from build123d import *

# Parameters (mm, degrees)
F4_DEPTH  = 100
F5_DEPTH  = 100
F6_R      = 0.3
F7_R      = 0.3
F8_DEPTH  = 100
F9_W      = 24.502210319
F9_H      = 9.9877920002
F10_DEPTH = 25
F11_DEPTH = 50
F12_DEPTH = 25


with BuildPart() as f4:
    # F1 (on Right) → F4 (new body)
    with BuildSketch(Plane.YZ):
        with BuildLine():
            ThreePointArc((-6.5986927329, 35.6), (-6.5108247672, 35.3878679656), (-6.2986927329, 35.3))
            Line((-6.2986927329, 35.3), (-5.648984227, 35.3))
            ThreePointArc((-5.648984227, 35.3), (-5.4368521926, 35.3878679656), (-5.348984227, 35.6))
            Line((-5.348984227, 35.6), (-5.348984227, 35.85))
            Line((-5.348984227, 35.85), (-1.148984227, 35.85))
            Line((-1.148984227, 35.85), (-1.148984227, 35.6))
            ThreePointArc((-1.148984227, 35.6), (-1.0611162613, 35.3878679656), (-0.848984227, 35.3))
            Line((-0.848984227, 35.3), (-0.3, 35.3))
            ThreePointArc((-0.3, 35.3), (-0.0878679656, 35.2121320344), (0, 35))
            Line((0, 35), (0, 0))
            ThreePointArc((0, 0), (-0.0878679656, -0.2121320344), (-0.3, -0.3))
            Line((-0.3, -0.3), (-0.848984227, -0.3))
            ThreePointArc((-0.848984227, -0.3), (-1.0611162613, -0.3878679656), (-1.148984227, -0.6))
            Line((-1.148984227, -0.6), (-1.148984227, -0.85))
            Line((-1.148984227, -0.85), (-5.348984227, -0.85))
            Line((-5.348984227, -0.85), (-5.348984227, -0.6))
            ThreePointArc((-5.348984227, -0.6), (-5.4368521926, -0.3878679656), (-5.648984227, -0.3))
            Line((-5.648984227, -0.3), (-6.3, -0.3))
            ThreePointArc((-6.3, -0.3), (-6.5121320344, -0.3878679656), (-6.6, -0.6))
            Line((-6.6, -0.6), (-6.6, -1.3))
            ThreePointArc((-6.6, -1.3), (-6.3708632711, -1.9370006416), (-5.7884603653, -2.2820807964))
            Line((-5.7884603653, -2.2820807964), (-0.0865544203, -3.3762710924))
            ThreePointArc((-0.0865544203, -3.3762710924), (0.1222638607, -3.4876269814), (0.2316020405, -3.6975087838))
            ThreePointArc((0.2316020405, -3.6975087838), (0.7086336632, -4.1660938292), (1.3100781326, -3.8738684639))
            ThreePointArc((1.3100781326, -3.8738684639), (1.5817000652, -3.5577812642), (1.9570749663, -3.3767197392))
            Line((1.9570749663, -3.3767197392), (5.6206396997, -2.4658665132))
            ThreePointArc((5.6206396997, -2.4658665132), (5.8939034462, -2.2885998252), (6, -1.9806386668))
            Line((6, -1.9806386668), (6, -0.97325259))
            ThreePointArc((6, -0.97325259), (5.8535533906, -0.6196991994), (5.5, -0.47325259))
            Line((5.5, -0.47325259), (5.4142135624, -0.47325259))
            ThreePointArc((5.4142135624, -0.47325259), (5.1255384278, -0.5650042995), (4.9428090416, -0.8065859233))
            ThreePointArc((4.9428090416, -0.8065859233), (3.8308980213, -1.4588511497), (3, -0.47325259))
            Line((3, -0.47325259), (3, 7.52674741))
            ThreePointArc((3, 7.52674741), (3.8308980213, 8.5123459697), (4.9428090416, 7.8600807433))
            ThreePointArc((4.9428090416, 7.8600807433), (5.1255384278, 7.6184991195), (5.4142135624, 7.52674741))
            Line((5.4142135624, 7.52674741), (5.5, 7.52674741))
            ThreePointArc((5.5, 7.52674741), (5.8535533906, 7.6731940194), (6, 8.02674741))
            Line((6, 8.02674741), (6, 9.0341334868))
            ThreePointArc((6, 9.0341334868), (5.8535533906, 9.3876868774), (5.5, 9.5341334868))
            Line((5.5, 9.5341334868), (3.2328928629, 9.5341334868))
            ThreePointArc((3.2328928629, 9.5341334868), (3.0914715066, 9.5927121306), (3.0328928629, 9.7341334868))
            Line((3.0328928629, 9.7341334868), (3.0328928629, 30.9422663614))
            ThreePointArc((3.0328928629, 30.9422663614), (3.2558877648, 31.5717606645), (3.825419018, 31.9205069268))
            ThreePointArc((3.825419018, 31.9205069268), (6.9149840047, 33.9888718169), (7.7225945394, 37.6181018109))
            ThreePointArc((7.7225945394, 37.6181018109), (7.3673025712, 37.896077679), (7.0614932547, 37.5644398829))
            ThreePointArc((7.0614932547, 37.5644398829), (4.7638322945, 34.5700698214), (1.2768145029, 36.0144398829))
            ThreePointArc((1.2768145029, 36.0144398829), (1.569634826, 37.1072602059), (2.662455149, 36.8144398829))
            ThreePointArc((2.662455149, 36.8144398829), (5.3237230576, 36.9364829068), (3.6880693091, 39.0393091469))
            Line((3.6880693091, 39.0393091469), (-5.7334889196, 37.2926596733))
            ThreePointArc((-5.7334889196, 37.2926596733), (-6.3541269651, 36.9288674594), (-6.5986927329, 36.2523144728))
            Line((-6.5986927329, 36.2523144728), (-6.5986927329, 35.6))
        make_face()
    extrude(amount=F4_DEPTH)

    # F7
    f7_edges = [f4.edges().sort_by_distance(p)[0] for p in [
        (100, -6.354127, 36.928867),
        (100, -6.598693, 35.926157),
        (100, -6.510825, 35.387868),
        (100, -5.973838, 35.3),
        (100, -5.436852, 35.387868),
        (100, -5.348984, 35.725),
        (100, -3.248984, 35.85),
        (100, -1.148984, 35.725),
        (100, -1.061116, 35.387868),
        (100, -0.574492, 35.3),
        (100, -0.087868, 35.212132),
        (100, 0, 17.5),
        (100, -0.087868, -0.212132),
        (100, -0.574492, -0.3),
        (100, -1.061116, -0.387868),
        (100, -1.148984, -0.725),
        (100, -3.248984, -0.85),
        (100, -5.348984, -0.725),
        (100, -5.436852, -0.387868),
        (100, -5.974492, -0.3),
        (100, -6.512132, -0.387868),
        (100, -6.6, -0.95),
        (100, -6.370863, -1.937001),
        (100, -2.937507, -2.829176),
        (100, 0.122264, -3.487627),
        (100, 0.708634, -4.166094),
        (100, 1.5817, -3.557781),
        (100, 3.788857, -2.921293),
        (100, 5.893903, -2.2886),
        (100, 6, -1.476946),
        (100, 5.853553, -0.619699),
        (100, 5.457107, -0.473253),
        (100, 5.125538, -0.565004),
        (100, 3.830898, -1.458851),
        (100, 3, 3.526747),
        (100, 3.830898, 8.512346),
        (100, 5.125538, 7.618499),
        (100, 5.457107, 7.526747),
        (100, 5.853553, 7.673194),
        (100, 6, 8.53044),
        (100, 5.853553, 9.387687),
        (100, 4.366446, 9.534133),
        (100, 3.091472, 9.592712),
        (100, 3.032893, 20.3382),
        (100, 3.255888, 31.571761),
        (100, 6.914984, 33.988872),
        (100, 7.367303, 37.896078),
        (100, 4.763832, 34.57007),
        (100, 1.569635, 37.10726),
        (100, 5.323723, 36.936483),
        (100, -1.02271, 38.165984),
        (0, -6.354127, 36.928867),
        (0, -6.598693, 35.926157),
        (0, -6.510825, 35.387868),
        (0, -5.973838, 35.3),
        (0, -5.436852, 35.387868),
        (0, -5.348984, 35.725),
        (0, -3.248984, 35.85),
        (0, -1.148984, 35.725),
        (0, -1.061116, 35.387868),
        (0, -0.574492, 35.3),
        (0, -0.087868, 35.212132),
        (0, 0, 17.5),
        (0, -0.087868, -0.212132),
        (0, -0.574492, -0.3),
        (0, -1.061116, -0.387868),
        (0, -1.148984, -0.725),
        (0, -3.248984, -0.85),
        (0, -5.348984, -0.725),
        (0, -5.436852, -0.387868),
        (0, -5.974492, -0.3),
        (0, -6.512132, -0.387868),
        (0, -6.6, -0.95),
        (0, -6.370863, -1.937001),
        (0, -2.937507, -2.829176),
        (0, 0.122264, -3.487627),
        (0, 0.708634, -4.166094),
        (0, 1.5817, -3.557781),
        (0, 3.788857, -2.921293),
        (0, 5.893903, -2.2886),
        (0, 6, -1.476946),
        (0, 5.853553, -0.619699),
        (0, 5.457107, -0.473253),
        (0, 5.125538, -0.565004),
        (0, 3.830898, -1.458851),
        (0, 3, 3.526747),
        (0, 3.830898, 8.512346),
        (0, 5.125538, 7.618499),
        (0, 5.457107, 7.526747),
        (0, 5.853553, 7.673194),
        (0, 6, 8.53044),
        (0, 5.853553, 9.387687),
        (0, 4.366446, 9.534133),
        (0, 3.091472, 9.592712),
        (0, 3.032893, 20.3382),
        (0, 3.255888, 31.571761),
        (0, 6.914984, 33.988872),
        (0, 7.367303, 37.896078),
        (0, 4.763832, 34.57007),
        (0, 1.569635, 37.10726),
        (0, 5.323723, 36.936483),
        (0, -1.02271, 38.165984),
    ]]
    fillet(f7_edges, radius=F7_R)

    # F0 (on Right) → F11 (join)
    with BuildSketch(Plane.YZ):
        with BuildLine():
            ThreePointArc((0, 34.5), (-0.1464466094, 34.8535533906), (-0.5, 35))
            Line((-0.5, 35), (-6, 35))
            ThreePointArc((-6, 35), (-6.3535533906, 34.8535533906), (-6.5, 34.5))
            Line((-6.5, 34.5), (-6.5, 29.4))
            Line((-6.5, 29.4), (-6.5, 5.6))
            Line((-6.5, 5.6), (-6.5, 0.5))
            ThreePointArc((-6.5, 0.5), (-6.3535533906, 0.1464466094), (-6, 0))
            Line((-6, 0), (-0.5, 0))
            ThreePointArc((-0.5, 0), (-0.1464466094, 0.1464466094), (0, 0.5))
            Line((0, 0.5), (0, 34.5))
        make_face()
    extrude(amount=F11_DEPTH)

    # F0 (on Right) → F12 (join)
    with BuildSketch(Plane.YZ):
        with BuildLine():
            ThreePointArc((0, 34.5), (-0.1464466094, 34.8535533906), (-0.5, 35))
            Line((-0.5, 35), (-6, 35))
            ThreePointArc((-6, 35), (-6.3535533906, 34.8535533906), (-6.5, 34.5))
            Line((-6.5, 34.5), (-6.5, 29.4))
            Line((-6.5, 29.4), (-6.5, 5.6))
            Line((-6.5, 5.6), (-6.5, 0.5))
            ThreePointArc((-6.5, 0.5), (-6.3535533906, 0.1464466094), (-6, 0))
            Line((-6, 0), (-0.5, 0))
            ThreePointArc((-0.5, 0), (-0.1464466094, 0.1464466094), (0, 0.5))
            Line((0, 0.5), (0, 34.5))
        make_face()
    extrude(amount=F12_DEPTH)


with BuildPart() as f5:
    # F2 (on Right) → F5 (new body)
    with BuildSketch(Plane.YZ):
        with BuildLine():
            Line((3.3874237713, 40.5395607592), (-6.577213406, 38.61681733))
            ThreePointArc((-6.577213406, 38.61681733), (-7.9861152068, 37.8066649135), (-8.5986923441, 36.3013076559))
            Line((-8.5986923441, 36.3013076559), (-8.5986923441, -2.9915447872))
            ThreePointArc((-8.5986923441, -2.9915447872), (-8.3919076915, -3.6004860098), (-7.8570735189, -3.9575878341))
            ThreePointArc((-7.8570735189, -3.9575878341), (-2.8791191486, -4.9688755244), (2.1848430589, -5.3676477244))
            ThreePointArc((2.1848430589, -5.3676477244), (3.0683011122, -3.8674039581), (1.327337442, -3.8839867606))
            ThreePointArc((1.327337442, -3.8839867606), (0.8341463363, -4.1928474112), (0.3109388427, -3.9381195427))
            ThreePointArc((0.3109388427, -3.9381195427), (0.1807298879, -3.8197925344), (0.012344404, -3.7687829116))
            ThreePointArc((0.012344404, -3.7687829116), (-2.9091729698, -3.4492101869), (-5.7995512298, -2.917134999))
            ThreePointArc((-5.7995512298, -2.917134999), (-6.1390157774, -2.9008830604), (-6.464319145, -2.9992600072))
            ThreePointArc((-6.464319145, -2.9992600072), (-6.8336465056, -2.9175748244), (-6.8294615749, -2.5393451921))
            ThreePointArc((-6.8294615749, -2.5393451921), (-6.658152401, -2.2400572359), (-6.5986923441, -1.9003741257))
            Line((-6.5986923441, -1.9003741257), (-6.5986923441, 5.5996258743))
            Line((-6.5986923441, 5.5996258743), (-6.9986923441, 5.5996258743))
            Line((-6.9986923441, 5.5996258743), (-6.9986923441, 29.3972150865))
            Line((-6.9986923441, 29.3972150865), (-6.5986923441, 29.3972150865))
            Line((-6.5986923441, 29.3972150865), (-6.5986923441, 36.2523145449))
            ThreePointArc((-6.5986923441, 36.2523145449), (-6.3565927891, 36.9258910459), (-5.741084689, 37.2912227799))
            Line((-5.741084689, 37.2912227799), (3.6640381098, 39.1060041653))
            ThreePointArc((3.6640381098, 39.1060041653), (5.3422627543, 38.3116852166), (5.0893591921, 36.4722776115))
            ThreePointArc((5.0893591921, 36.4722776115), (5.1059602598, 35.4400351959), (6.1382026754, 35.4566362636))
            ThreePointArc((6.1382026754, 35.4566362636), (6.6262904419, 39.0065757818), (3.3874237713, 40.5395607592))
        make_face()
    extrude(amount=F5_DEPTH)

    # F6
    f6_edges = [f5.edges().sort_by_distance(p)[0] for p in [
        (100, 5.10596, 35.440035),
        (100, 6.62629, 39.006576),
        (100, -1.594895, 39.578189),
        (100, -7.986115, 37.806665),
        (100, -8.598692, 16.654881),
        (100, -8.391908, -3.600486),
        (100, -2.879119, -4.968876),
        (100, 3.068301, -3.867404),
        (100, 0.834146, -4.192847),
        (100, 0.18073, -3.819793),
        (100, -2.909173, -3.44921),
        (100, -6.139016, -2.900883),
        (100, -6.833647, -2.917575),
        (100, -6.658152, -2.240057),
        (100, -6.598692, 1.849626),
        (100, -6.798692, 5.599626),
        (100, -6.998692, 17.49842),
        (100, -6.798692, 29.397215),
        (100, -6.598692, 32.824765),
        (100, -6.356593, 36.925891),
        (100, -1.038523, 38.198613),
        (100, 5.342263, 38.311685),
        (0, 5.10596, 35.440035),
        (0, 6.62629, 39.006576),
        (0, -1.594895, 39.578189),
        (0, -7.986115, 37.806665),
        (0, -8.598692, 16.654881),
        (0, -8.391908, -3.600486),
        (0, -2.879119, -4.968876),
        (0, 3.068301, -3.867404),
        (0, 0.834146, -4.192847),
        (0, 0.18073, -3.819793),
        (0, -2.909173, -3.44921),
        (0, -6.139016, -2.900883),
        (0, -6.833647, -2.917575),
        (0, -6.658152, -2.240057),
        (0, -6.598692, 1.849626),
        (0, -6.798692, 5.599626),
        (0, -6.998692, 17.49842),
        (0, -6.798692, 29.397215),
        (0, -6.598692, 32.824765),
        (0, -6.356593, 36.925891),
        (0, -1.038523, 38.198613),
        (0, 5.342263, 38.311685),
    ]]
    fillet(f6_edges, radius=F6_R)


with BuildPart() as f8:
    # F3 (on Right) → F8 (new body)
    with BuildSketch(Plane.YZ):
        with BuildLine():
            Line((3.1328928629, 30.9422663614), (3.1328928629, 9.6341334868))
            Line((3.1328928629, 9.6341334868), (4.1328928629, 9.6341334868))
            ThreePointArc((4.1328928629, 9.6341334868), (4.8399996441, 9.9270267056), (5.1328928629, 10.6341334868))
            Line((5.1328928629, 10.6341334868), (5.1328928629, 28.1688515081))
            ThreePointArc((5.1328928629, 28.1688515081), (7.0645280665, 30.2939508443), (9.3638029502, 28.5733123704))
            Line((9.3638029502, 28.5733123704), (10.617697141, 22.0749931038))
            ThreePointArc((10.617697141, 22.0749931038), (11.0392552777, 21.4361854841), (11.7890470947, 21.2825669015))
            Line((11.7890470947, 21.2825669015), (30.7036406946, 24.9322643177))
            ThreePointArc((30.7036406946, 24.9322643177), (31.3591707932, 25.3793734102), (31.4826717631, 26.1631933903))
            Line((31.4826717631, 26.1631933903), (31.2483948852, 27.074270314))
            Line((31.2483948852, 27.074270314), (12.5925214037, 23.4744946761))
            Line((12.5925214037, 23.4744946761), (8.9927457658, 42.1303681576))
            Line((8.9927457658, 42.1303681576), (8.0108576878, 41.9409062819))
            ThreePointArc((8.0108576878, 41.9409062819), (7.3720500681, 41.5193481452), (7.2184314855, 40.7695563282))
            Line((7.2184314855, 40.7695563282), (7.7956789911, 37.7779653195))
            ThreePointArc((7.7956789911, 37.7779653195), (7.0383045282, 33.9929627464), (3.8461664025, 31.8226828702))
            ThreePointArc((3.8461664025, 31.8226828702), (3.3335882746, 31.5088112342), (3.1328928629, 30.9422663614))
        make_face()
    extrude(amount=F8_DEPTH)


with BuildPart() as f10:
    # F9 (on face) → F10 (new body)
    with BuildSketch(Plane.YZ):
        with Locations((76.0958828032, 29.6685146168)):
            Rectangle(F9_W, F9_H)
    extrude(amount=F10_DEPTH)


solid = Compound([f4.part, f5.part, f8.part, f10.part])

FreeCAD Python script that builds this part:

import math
import FreeCAD as App
import Part
import Sketcher
from FreeCAD import Vector
Q = App.Units.Quantity


def edges_at(feature, points):
    """Names of the edges that pass closest to the given points."""
    edges = feature.Shape.Edges
    near = lambda p: min(range(len(edges)), key=lambda i: edges[i].distToShape(Part.Vertex(*p))[0])
    return sorted({f"Edge{near(p) + 1}" for p in points})


def add_polygon(sketch, points):
    """Adds a closed chain of lines whose ends are joined by coincident constraints."""
    first, n = sketch.GeometryCount, len(points)
    for a, b in zip(points, points[1:] + points[:1]):
        sketch.addGeometry(Part.LineSegment(App.Vector(*a, 0), App.Vector(*b, 0)), False)
    for i in range(n):
        sketch.addConstraint(Sketcher.Constraint("Coincident", first + i, 2, first + (i + 1) % n, 1))

doc = App.newDocument("Part")
params = doc.addObject("Spreadsheet::Sheet", "Params")
for row, (alias, value) in enumerate([
    ("sketch1_radius", "1 mm"),
    ("sketch1_radius2", "5 mm"),
    ("sketch1_radius3", "0.3 mm"),
    ("sketch1_radius4", "0.4 mm"),
    ("sketch1_radius5", "0.5 mm"),
    ("pad1_length", "100 mm"),
    ("fillet_radius", "0.3 mm"),
    ("sketch2_radius", "0.5 mm"),
    ("sketch2_height", "34 mm"),
    ("sketch2_width", "5.5 mm"),
    ("pad2_length", "50 mm"),
    ("sketch3_radius", "0.5 mm"),
    ("sketch3_height", "34 mm"),
    ("sketch3_width", "5.5 mm"),
    ("pad3_length", "25 mm"),
    ("sketch4_radius", "1 mm"),
    ("sketch4_radius2", "0.6 mm"),
    ("sketch4_radius3", "0.4 mm"),
    ("sketch4_radius4", "0.3 mm"),
    ("sketch4_radius5", "1.57 mm"),
    ("pad4_length", "100 mm"),
    ("fillet2_radius", "0.3 mm"),
    ("sketch5_radius", "1 mm"),
    ("sketch5_radius2", "5.1 mm"),
    ("sketch5_radius3", "0.9 mm"),
    ("sketch5_width", "1 mm"),
    ("sketch5_length", "19 mm"),
    ("pad5_length", "100 mm"),
    ("pad6_length", "25 mm"),
], start=1):
    params.set(f"A{row}", alias)
    params.set(f"B{row}", "=" + value)
    params.setAlias(f"B{row}", alias)

body = doc.addObject("PartDesign::Body", "Body")

sketch1 = body.newObject("Sketcher::SketchObject", "Sketch")
sketch1.AttachmentSupport = (doc.getObject("YZ_Plane"), [""])
sketch1.MapMode = "FlatFace"
sketch1.addGeometry(Part.ArcOfCircle(Part.Circle(Vector(-6.3, 35.6, 0), Vector(0, 0, 1), 0.3), math.radians(180), math.radians(270)), False)
sketch1.addGeometry(Part.LineSegment(Vector(-6.3, 35.3, 0), Vector(-5.65, 35.3, 0)), False)
sketch1.addGeometry(Part.ArcOfCircle(Part.Circle(Vector(-5.65, 35.6, 0), Vector(0, 0, 1), 0.3), math.radians(-90), math.radians(0)), False)
sketch1.addGeometry(Part.LineSegment(Vector(-5.35, 35.6, 0), Vector(-5.35, 35.85, 0)), False)
sketch1.addGeometry(Part.LineSegment(Vector(-5.35, 35.85, 0), Vector(-1.15, 35.85, 0)), False)
sketch1.addGeometry(Part.LineSegment(Vector(-1.15, 35.85, 0), Vector(-1.15, 35.6, 0)), False)
sketch1.addGeometry(Part.ArcOfCircle(Part.Circle(Vector(-0.85, 35.6, 0), Vector(0, 0, 1), 0.3), math.radians(180), math.radians(270)), False)
sketch1.addGeometry(Part.LineSegment(Vector(-0.85, 35.3, 0), Vector(-0.3, 35.3, 0)), False)
sketch1.addGeometry(Part.ArcOfCircle(Part.Circle(Vector(-0.3, 35, 0), Vector(0, 0, 1), 0.3), math.radians(0), math.radians(90)), False)
sketch1.addGeometry(Part.LineSegment(Vector(0, 35, 0), Vector(0, 0, 0)), False)
sketch1.addGeometry(Part.ArcOfCircle(Part.Circle(Vector(-0.3, 0, 0), Vector(0, 0, 1), 0.3), math.radians(-90), math.radians(0)), False)
sketch1.addGeometry(Part.LineSegment(Vector(-0.3, -0.3, 0), Vector(-0.85, -0.3, 0)), False)
sketch1.addGeometry(Part.ArcOfCircle(Part.Circle(Vector(-0.85, -0.6, 0), Vector(0, 0, 1), 0.3), math.radians(90), math.radians(180)), False)
sketch1.addGeometry(Part.LineSegment(Vector(-1.15, -0.6, 0), Vector(-1.15, -0.85, 0)), False)
sketch1.addGeometry(Part.LineSegment(Vector(-1.15, -0.85, 0), Vector(-5.35, -0.85, 0)), False)
sketch1.addGeometry(Part.LineSegment(Vector(-5.35, -0.85, 0), Vector(-5.35, -0.6, 0)), False)
sketch1.addGeometry(Part.ArcOfCircle(Part.Circle(Vector(-5.65, -0.6, 0), Vector(0, 0, 1), 0.3), math.radians(0), math.radians(90)), False)
sketch1.addGeometry(Part.LineSegment(Vector(-5.65, -0.3, 0), Vector(-6.3, -0.3, 0)), False)
sketch1.addGeometry(Part.ArcOfCircle(Part.Circle(Vector(-6.3, -0.6, 0), Vector(0, 0, 1), 0.3), math.radians(90), math.radians(180)), False)
sketch1.addGeometry(Part.LineSegment(Vector(-6.6, -0.6, 0), Vector(-6.6, -1.3, 0)), False)
sketch1.addGeometry(Part.ArcOfCircle(Part.Circle(Vector(-5.6, -1.3, 0), Vector(0, 0, 1), 1), math.radians(180), math.radians(259)), False)
sketch1.addGeometry(Part.LineSegment(Vector(-5.79, -2.28, 0), Vector(-0.09, -3.38, 0)), False)
sketch1.addGeometry(Part.ArcOfCircle(Part.Circle(Vector(-0.16, -3.77, 0), Vector(0, 0, 1), 0.4), math.radians(10), math.radians(79)), False)
sketch1.addGeometry(Part.ArcOfCircle(Part.Circle(Vector(0.8, -3.59, 0), Vector(0, 0, 1), 0.58), math.radians(-170), math.radians(-29)), False)
sketch1.addGeometry(Part.ArcOfCircle(Part.Circle(Vector(2.2, -4.37, 0), Vector(0, 0, 1), 1.02), math.radians(104), math.radians(151)), False)
sketch1.addGeometry(Part.LineSegment(Vector(1.96, -3.38, 0), Vector(5.62, -2.47, 0)), False)
sketch1.addGeometry(Part.ArcOfCircle(Part.Circle(Vector(5.5, -1.98, 0), Vector(0, 0, 1), 0.5), math.radians(-76), math.radians(0)), False)
sketch1.addGeometry(Part.LineSegment(Vector(6, -1.98, 0), Vector(6, -0.97, 0)), False)
sketch1.addGeometry(Part.ArcOfCircle(Part.Circle(Vector(5.5, -0.97, 0), Vector(0, 0, 1), 0.5), math.radians(0), math.radians(90)), False)
sketch1.addGeometry(Part.LineSegment(Vector(5.5, -0.47, 0), Vector(5.41, -0.47, 0)), False)
sketch1.addGeometry(Part.ArcOfCircle(Part.Circle(Vector(5.41, -0.97, 0), Vector(0, 0, 1), 0.5), math.radians(90), math.radians(161)), False)
sketch1.addGeometry(Part.ArcOfCircle(Part.Circle(Vector(4, -0.47, 0), Vector(0, 0, 1), 1), math.radians(180), math.radians(341)), False)
sketch1.addGeometry(Part.LineSegment(Vector(3, -0.47, 0), Vector(3, 7.53, 0)), False)
sketch1.addGeometry(Part.ArcOfCircle(Part.Circle(Vector(4, 7.53, 0), Vector(0, 0, 1), 1), math.radians(19), math.radians(180)), False)
sketch1.addGeometry(Part.ArcOfCircle(Part.Circle(Vector(5.41, 8.03, 0), Vector(0, 0, 1), 0.5), math.radians(-161), math.radians(-90)), False)
sketch1.addGeometry(Part.LineSegment(Vector(5.41, 7.53, 0), Vector(5.5, 7.53, 0)), False)
sketch1.addGeometry(Part.ArcOfCircle(Part.Circle(Vector(5.5, 8.03, 0), Vector(0, 0, 1), 0.5), math.radians(-90), math.radians(0)), False)
sketch1.addGeometry(Part.LineSegment(Vector(6, 8.03, 0), Vector(6, 9.03, 0)), False)
sketch1.addGeometry(Part.ArcOfCircle(Part.Circle(Vector(5.5, 9.03, 0), Vector(0, 0, 1), 0.5), math.radians(0), math.radians(90)), False)
sketch1.addGeometry(Part.LineSegment(Vector(5.5, 9.53, 0), Vector(3.23, 9.53, 0)), False)
sketch1.addGeometry(Part.ArcOfCircle(Part.Circle(Vector(3.23, 9.73, 0), Vector(0, 0, 1), 0.2), math.radians(180), math.radians(270)), False)
sketch1.addGeometry(Part.LineSegment(Vector(3.03, 9.73, 0), Vector(3.03, 30.94, 0)), False)
sketch1.addGeometry(Part.ArcOfCircle(Part.Circle(Vector(4.03, 30.94, 0), Vector(0, 0, 1), 1), math.radians(102), math.radians(180)), False)
sketch1.addGeometry(Part.ArcOfCircle(Part.Circle(Vector(2.79, 36.81, 0), Vector(0, 0, 1), 5), math.radians(-78), math.radians(9)), False)
sketch1.addGeometry(Part.ArcOfCircle(Part.Circle(Vector(7.39, 37.56, 0), Vector(0, 0, 1), 0.33), math.radians(9), math.radians(180)), False)
sketch1.addGeometry(Part.ArcOfCircle(Part.Circle(Vector(3.96, 37.56, 0), Vector(0, 0, 1), 3.1), math.radians(-150), math.radians(0)), False)
sketch1.addGeometry(Part.ArcOfCircle(Part.Circle(Vector(1.97, 36.41, 0), Vector(0, 0, 1), 0.8), math.radians(30), math.radians(210)), False)
sketch1.addGeometry(Part.ArcOfCircle(Part.Circle(Vector(3.96, 37.56, 0), Vector(0, 0, 1), 1.5), math.radians(-150), math.radians(101)), False)
sketch1.addGeometry(Part.LineSegment(Vector(3.69, 39.04, 0), Vector(-5.73, 37.29, 0)), False)
sketch1.addGeometry(Part.ArcOfCircle(Part.Circle(Vector(-5.54, 36.25, 0), Vector(0, 0, 1), 1.06), math.radians(101), math.radians(180)), False)
sketch1.addGeometry(Part.LineSegment(Vector(-6.6, 36.25, 0), Vector(-6.6, 35.6, 0)), False)
sketch1.addConstraint(Sketcher.Constraint("Tangent", 0, 2, 1, 1))
sketch1.addConstraint(Sketcher.Constraint("Tangent", 1, 2, 2, 1))
sketch1.addConstraint(Sketcher.Constraint("Tangent", 2, 2, 3, 1))
sketch1.addConstraint(Sketcher.Constraint("Coincident", 3, 2, 4, 1))
sketch1.addConstraint(Sketcher.Constraint("Coincident", 4, 2, 5, 1))
sketch1.addConstraint(Sketcher.Constraint("Tangent", 5, 2, 6, 1))
sketch1.addConstraint(Sketcher.Constraint("Tangent", 6, 2, 7, 1))
sketch1.addConstraint(Sketcher.Constraint("Tangent", 7, 2, 8, 2))
sketch1.addConstraint(Sketcher.Constraint("Tangent", 8, 1, 9, 1))
sketch1.addConstraint(Sketcher.Constraint("Tangent", 9, 2, 10, 2))
sketch1.addConstraint(Sketcher.Constraint("Tangent", 10, 1, 11, 1))
sketch1.addConstraint(Sketcher.Constraint("Tangent", 11, 2, 12, 1))
sketch1.addConstraint(Sketcher.Constraint("Tangent", 12, 2, 13, 1))
sketch1.addConstraint(Sketcher.Constraint("Coincident", 13, 2, 14, 1))
sketch1.addConstraint(Sketcher.Constraint("Coincident", 14, 2, 15, 1))
sketch1.addConstraint(Sketcher.Constraint("Tangent", 15, 2, 16, 1))
sketch1.addConstraint(Sketcher.Constraint("Tangent", 16, 2, 17, 1))
sketch1.addConstraint(Sketcher.Constraint("Tangent", 17, 2, 18, 1))
sketch1.addConstraint(Sketcher.Constraint("Tangent", 18, 2, 19, 1))
sketch1.addConstraint(Sketcher.Constraint("Tangent", 19, 2, 20, 1))
sketch1.addConstraint(Sketcher.Constraint("Tangent", 20, 2, 21, 1))
sketch1.addConstraint(Sketcher.Constraint("Tangent", 21, 2, 22, 2))
sketch1.addConstraint(Sketcher.Constraint("Tangent", 22, 1, 23, 1))
sketch1.addConstraint(Sketcher.Constraint("Tangent", 23, 2, 24, 2))
sketch1.addConstraint(Sketcher.Constraint("Tangent", 24, 1, 25, 1))
sketch1.addConstraint(Sketcher.Constraint("Tangent", 25, 2, 26, 1))
sketch1.addConstraint(Sketcher.Constraint("Tangent", 26, 2, 27, 1))
sketch1.addConstraint(Sketcher.Constraint("Tangent", 27, 2, 28, 1))
sketch1.addConstraint(Sketcher.Constraint("Tangent", 28, 2, 29, 1))
sketch1.addConstraint(Sketcher.Constraint("Tangent", 29, 2, 30, 1))
sketch1.addConstraint(Sketcher.Constraint("Tangent", 30, 2, 31, 2))
sketch1.addConstraint(Sketcher.Constraint("Tangent", 31, 1, 32, 1))
sketch1.addConstraint(Sketcher.Constraint("Tangent", 32, 2, 33, 2))
sketch1.addConstraint(Sketcher.Constraint("Tangent", 33, 1, 34, 1))
sketch1.addConstraint(Sketcher.Constraint("Tangent", 34, 2, 35, 1))
sketch1.addConstraint(Sketcher.Constraint("Tangent", 35, 2, 36, 1))
sketch1.addConstraint(Sketcher.Constraint("Tangent", 36, 2, 37, 1))
sketch1.addConstraint(Sketcher.Constraint("Tangent", 37, 2, 38, 1))
sketch1.addConstraint(Sketcher.Constraint("Tangent", 38, 2, 39, 1))
sketch1.addConstraint(Sketcher.Constraint("Tangent", 39, 2, 40, 2))
sketch1.addConstraint(Sketcher.Constraint("Tangent", 40, 1, 41, 1))
sketch1.addConstraint(Sketcher.Constraint("Tangent", 41, 2, 42, 2))
sketch1.addConstraint(Sketcher.Constraint("Tangent", 42, 1, 43, 1))
sketch1.addConstraint(Sketcher.Constraint("Tangent", 43, 2, 44, 1))
sketch1.addConstraint(Sketcher.Constraint("Tangent", 44, 2, 45, 2))
sketch1.addConstraint(Sketcher.Constraint("Tangent", 45, 1, 46, 2))
sketch1.addConstraint(Sketcher.Constraint("Tangent", 46, 1, 47, 1))
sketch1.addConstraint(Sketcher.Constraint("Tangent", 47, 2, 48, 1))
sketch1.addConstraint(Sketcher.Constraint("Tangent", 48, 2, 49, 1))
sketch1.addConstraint(Sketcher.Constraint("Tangent", 49, 2, 50, 1))
sketch1.addConstraint(Sketcher.Constraint("Tangent", 50, 2, 0, 1))
sketch1.addConstraint(Sketcher.Constraint("Horizontal", 1))
sketch1.addConstraint(Sketcher.Constraint("Vertical", 3))
sketch1.addConstraint(Sketcher.Constraint("Horizontal", 4))
sketch1.addConstraint(Sketcher.Constraint("Vertical", 5))
sketch1.addConstraint(Sketcher.Constraint("Horizontal", 7))
sketch1.addConstraint(Sketcher.Constraint("Vertical", 9))
sketch1.addConstraint(Sketcher.Constraint("Horizontal", 11))
sketch1.addConstraint(Sketcher.Constraint("Vertical", 13))
sketch1.addConstraint(Sketcher.Constraint("Horizontal", 14))
sketch1.addConstraint(Sketcher.Constraint("Vertical", 15))
sketch1.addConstraint(Sketcher.Constraint("Horizontal", 17))
sketch1.addConstraint(Sketcher.Constraint("Vertical", 19))
sketch1.addConstraint(Sketcher.Constraint("Vertical", 27))
sketch1.addConstraint(Sketcher.Constraint("Horizontal", 29))
sketch1.addConstraint(Sketcher.Constraint("Vertical", 32))
sketch1.addConstraint(Sketcher.Constraint("Horizontal", 35))
sketch1.addConstraint(Sketcher.Constraint("Vertical", 37))
sketch1.addConstraint(Sketcher.Constraint("Horizontal", 39))
sketch1.addConstraint(Sketcher.Constraint("Vertical", 41))
sketch1.addConstraint(Sketcher.Constraint("Vertical", 50))
sketch1.addConstraint(Sketcher.Constraint("Coincident", 9, 2, -1, 1))
sketch1.addConstraint(Sketcher.Constraint("Coincident", 47, 3, 45, 3))
sketch1.addConstraint(Sketcher.Constraint("Equal", 0, 2))
sketch1.addConstraint(Sketcher.Constraint("Equal", 2, 6))
sketch1.addConstraint(Sketcher.Constraint("Equal", 6, 8))
sketch1.addConstraint(Sketcher.Constraint("Equal", 8, 10))
sketch1.addConstraint(Sketcher.Constraint("Equal", 10, 12))
sketch1.addConstraint(Sketcher.Constraint("Equal", 12, 16))
sketch1.addConstraint(Sketcher.Constraint("Equal", 16, 18))
sketch1.addConstraint(Sketcher.Constraint("Equal", 26, 28))
sketch1.addConstraint(Sketcher.Constraint("Equal", 28, 30))
sketch1.addConstraint(Sketcher.Constraint("Equal", 20, 31))
sketch1.addConstraint(Sketcher.Constraint("Equal", 31, 33))
sketch1.addConstraint(Sketcher.Constraint("Equal", 30, 34))
sketch1.addConstraint(Sketcher.Constraint("Equal", 34, 36))
sketch1.addConstraint(Sketcher.Constraint("Equal", 36, 38))
sketch1.addConstraint(Sketcher.Constraint("Equal", 33, 42))
sketch1.addConstraint(Sketcher.Constraint("Horizontal", 2, 3, 6, 3))
sketch1.addConstraint(Sketcher.Constraint("Horizontal", 12, 3, 16, 3))
sketch1.addConstraint(Sketcher.Constraint("Horizontal", 44, 3, 45, 3))
sketch1.addConstraint(Sketcher.Constraint("Horizontal", 31, 3, 28, 2))
sketch1.addConstraint(Sketcher.Constraint("Horizontal", 32, 2, 34, 2))
sketch1.addConstraint(Sketcher.Constraint("Vertical", 6, 3, 12, 3))
sketch1.addConstraint(Sketcher.Constraint("Vertical", 2, 3, 16, 3))
sketch1.addConstraint(Sketcher.Constraint("Vertical", 28, 3, 36, 3))
sketch1.addConstraint(Sketcher.Constraint("Equal", 5, 13))
sketch1.addConstraint(Sketcher.Constraint("Equal", 27, 37))
sketch1.addConstraint(Sketcher.Constraint("Radius", 20, Q("1 mm")))
sketch1.addConstraint(Sketcher.Constraint("Radius", 43, Q("5 mm")))
sketch1.addConstraint(Sketcher.Constraint("Radius", 0, Q("0.3 mm")))
sketch1.addConstraint(Sketcher.Constraint("Radius", 22, Q("0.4 mm")))
sketch1.addConstraint(Sketcher.Constraint("Radius", 26, Q("0.5 mm")))
sketch1.addConstraint(Sketcher.Constraint("Radius", 40, Q("0.2 mm")))
sketch1.addConstraint(Sketcher.Constraint("Radius", 45, Q("3.1 mm")))
sketch1.addConstraint(Sketcher.Constraint("Radius", 46, Q("0.8 mm")))
sketch1.addConstraint(Sketcher.Constraint("DistanceY", 9, 2, 9, 1, Q("35 mm")))
sketch1.addConstraint(Sketcher.Constraint("DistanceY", 32, 1, 32, 2, Q("8 mm")))
sketch1.addConstraint(Sketcher.Constraint("Radius", 23, Q("0.58 mm")))
sketch1.addConstraint(Sketcher.Constraint("Radius", 24, Q("1.02 mm")))
sketch1.addConstraint(Sketcher.Constraint("DistanceX", 4, 1, 4, 2, Q("4.2 mm")))
sketch1.addConstraint(Sketcher.Constraint("DistanceY", 19, 2, 19, 1, Q("0.7 mm")))
sketch1.addConstraint(Sketcher.Constraint("DistanceX", -1, 1, 31, 3, Q("4 mm")))
sketch1.addConstraint(Sketcher.Constraint("DistanceX", -1, 1, 26, 2, Q("6 mm")))
sketch1.addConstraint(Sketcher.Constraint("DistanceY", 3, 1, 3, 2, Q("0.25 mm")))
sketch1.addConstraint(Sketcher.Constraint("DistanceX", 18, 3, -1, 1, Q("6.3 mm")))
sketch1.addConstraint(Sketcher.Constraint("Radius", 44, Q("0.332729 mm")))
sketch1.addConstraint(Sketcher.Constraint("Radius", 49, Q("1.058072 mm")))
sketch1.addConstraint(Sketcher.Constraint("DistanceX", 1, 1, 1, 2, Q("0.649709 mm")))
sketch1.addConstraint(Sketcher.Constraint("DistanceY", -1, 1, 43, 2, Q("37.618102 mm")))
sketch1.addConstraint(Sketcher.Constraint("DistanceX", 7, 1, 7, 2, Q("0.548984 mm")))
sketch1.addConstraint(Sketcher.Constraint("DistanceX", 39, 2, 39, 1, Q("2.267107 mm")))
sketch1.addConstraint(Sketcher.Constraint("DistanceY", 27, 1, 27, 2, Q("1.007386 mm")))
sketch1.addConstraint(Sketcher.Constraint("DistanceY", 41, 1, 41, 2, Q("21.208133 mm")))
sketch1.addConstraint(Sketcher.Constraint("DistanceY", 50, 2, 50, 1, Q("0.652314 mm")))
sketch1.addConstraint(Sketcher.Constraint("DistanceX", 22, 3, -1, 1, Q("0.161939 mm")))
sketch1.addConstraint(Sketcher.Constraint("DistanceX", -1, 1, 24, 3, Q("2.20318 mm")))
sketch1.addConstraint(Sketcher.Constraint("DistanceY", 26, 3, -1, 1, Q("1.980639 mm")))
sketch1.addConstraint(Sketcher.Constraint("DistanceX", -1, 1, 43, 3, Q("2.78805 mm")))
sketch1.addConstraint(Sketcher.Constraint("DistanceY", -1, 1, 46, 3, Q("36.41444 mm")))
sketch1.addConstraint(Sketcher.Constraint("DistanceX", 20, 2, -1, 1, Q("5.78846 mm")))
sketch1.addConstraint(Sketcher.Constraint("DistanceY", 22, 1, -1, 1, Q("3.697509 mm")))
sketch1.setExpression("Constraints[98]", "Params.sketch1_radius")
sketch1.setExpression("Constraints[99]", "Params.sketch1_radius2")
sketch1.setExpression("Constraints[100]", "Params.sketch1_radius3")
sketch1.setExpression("Constraints[101]", "Params.sketch1_radius4")
sketch1.setExpression("Constraints[102]", "Params.sketch1_radius5")
pad1 = body.newObject("PartDesign::Pad", "Pad")
pad1.Profile = sketch1
pad1.setExpression("Length", "Params.pad1_length")
doc.recompute()

fillet = body.newObject("PartDesign::Fillet", "Fillet")
fillet.Base = (pad1, edges_at(pad1, [
    (100, -6.354, 36.929),
    (100, -6.599, 35.926),
    (100, -6.511, 35.388),
    (100, -5.974, 35.3),
    (100, -5.437, 35.388),
    (100, -5.349, 35.725),
    (100, -3.249, 35.85),
    (100, -1.149, 35.725),
    (100, -1.061, 35.388),
    (100, -0.574, 35.3),
    (100, -0.088, 35.212),
    (100, 0, 17.5),
    (100, -0.088, -0.212),
    (100, -0.574, -0.3),
    (100, -1.061, -0.388),
    (100, -1.149, -0.725),
    (100, -3.249, -0.85),
    (100, -5.349, -0.725),
    (100, -5.437, -0.388),
    (100, -5.974, -0.3),
    (100, -6.512, -0.388),
    (100, -6.6, -0.95),
    (100, -6.371, -1.937),
    (100, -2.938, -2.829),
    (100, 0.122, -3.488),
    (100, 0.709, -4.166),
    (100, 1.582, -3.558),
    (100, 3.789, -2.921),
    (100, 5.894, -2.289),
    (100, 6, -1.477),
    (100, 5.854, -0.62),
    (100, 5.457, -0.473),
    (100, 5.126, -0.565),
    (100, 3.831, -1.459),
    (100, 3, 3.527),
    (100, 3.831, 8.512),
    (100, 5.126, 7.618),
    (100, 5.457, 7.527),
    (100, 5.854, 7.673),
    (100, 6, 8.53),
    (100, 5.854, 9.388),
    (100, 4.366, 9.534),
    (100, 3.091, 9.593),
    (100, 3.033, 20.338),
    (100, 3.256, 31.572),
    (100, 6.915, 33.989),
    (100, 7.367, 37.896),
    (100, 4.764, 34.57),
    (100, 1.57, 37.107),
    (100, 5.324, 36.936),
    (100, -1.023, 38.166),
    (0, -6.354, 36.929),
    (0, -6.599, 35.926),
    (0, -6.511, 35.388),
    (0, -5.974, 35.3),
    (0, -5.437, 35.388),
    (0, -5.349, 35.725),
    (0, -3.249, 35.85),
    (0, -1.149, 35.725),
    (0, -1.061, 35.388),
    (0, -0.574, 35.3),
    (0, -0.088, 35.212),
    (0, 0, 17.5),
    (0, -0.088, -0.212),
    (0, -0.574, -0.3),
    (0, -1.061, -0.388),
    (0, -1.149, -0.725),
    (0, -3.249, -0.85),
    (0, -5.349, -0.725),
    (0, -5.437, -0.388),
    (0, -5.974, -0.3),
    (0, -6.512, -0.388),
    (0, -6.6, -0.95),
    (0, -6.371, -1.937),
    (0, -2.938, -2.829),
    (0, 0.122, -3.488),
    (0, 0.709, -4.166),
    (0, 1.582, -3.558),
    (0, 3.789, -2.921),
    (0, 5.894, -2.289),
    (0, 6, -1.477),
    (0, 5.854, -0.62),
    (0, 5.457, -0.473),
    (0, 5.126, -0.565),
    (0, 3.831, -1.459),
    (0, 3, 3.527),
    (0, 3.831, 8.512),
    (0, 5.126, 7.618),
    (0, 5.457, 7.527),
    (0, 5.854, 7.673),
    (0, 6, 8.53),
    (0, 5.854, 9.388),
    (0, 4.366, 9.534),
    (0, 3.091, 9.593),
    (0, 3.033, 20.338),
    (0, 3.256, 31.572),
    (0, 6.915, 33.989),
    (0, 7.367, 37.896),
    (0, 4.764, 34.57),
    (0, 1.57, 37.107),
    (0, 5.324, 36.936),
    (0, -1.023, 38.166),
]))
fillet.setExpression("Radius", "Params.fillet_radius")

sketch2 = body.newObject("Sketcher::SketchObject", "Sketch001")
sketch2.AttachmentSupport = (doc.getObject("YZ_Plane"), [""])
sketch2.MapMode = "FlatFace"
sketch2.addGeometry(Part.ArcOfCircle(Part.Circle(Vector(-0.5, 34.5, 0), Vector(0, 0, 1), 0.5), math.radians(0), math.radians(90)), False)
sketch2.addGeometry(Part.LineSegment(Vector(-0.5, 35, 0), Vector(-6, 35, 0)), False)
sketch2.addGeometry(Part.ArcOfCircle(Part.Circle(Vector(-6, 34.5, 0), Vector(0, 0, 1), 0.5), math.radians(90), math.radians(180)), False)
sketch2.addGeometry(Part.LineSegment(Vector(-6.5, 34.5, 0), Vector(-6.5, 0.5, 0)), False)
sketch2.addGeometry(Part.ArcOfCircle(Part.Circle(Vector(-6, 0.5, 0), Vector(0, 0, 1), 0.5), math.radians(180), math.radians(270)), False)
sketch2.addGeometry(Part.LineSegment(Vector(-6, 0, 0), Vector(-0.5, 0, 0)), False)
sketch2.addGeometry(Part.ArcOfCircle(Part.Circle(Vector(-0.5, 0.5, 0), Vector(0, 0, 1), 0.5), math.radians(-90), math.radians(0)), False)
sketch2.addGeometry(Part.LineSegment(Vector(0, 0.5, 0), Vector(0, 34.5, 0)), False)
sketch2.addConstraint(Sketcher.Constraint("Tangent", 0, 2, 1, 1))
sketch2.addConstraint(Sketcher.Constraint("Tangent", 1, 2, 2, 1))
sketch2.addConstraint(Sketcher.Constraint("Tangent", 2, 2, 3, 1))
sketch2.addConstraint(Sketcher.Constraint("Tangent", 3, 2, 4, 1))
sketch2.addConstraint(Sketcher.Constraint("Tangent", 4, 2, 5, 1))
sketch2.addConstraint(Sketcher.Constraint("Tangent", 5, 2, 6, 1))
sketch2.addConstraint(Sketcher.Constraint("Tangent", 6, 2, 7, 1))
sketch2.addConstraint(Sketcher.Constraint("Tangent", 7, 2, 0, 1))
sketch2.addConstraint(Sketcher.Constraint("Horizontal", 1))
sketch2.addConstraint(Sketcher.Constraint("Vertical", 3))
sketch2.addConstraint(Sketcher.Constraint("Horizontal", 5))
sketch2.addConstraint(Sketcher.Constraint("Vertical", 7))
sketch2.addConstraint(Sketcher.Constraint("Equal", 0, 2))
sketch2.addConstraint(Sketcher.Constraint("Equal", 2, 4))
sketch2.addConstraint(Sketcher.Constraint("Equal", 4, 6))
sketch2.addConstraint(Sketcher.Constraint("PointOnObject", 4, 2, -1))
sketch2.addConstraint(Sketcher.Constraint("PointOnObject", 6, 2, -2))
sketch2.addConstraint(Sketcher.Constraint("Radius", 0, Q("0.5 mm")))
sketch2.addConstraint(Sketcher.Constraint("DistanceY", 3, 2, 3, 1, Q("34 mm")))
sketch2.addConstraint(Sketcher.Constraint("DistanceX", 1, 2, 1, 1, Q("5.5 mm")))
sketch2.setExpression("Constraints[17]", "Params.sketch2_radius")
sketch2.setExpression("Constraints[18]", "Params.sketch2_height")
sketch2.setExpression("Constraints[19]", "Params.sketch2_width")
pad2 = body.newObject("PartDesign::Pad", "Pad001")
pad2.Profile = sketch2
pad2.setExpression("Length", "Params.pad2_length")

sketch3 = body.newObject("Sketcher::SketchObject", "Sketch002")
sketch3.AttachmentSupport = (doc.getObject("YZ_Plane"), [""])
sketch3.MapMode = "FlatFace"
sketch3.addGeometry(Part.ArcOfCircle(Part.Circle(Vector(-0.5, 34.5, 0), Vector(0, 0, 1), 0.5), math.radians(0), math.radians(90)), False)
sketch3.addGeometry(Part.LineSegment(Vector(-0.5, 35, 0), Vector(-6, 35, 0)), False)
sketch3.addGeometry(Part.ArcOfCircle(Part.Circle(Vector(-6, 34.5, 0), Vector(0, 0, 1), 0.5), math.radians(90), math.radians(180)), False)
sketch3.addGeometry(Part.LineSegment(Vector(-6.5, 34.5, 0), Vector(-6.5, 0.5, 0)), False)
sketch3.addGeometry(Part.ArcOfCircle(Part.Circle(Vector(-6, 0.5, 0), Vector(0, 0, 1), 0.5), math.radians(180), math.radians(270)), False)
sketch3.addGeometry(Part.LineSegment(Vector(-6, 0, 0), Vector(-0.5, 0, 0)), False)
sketch3.addGeometry(Part.ArcOfCircle(Part.Circle(Vector(-0.5, 0.5, 0), Vector(0, 0, 1), 0.5), math.radians(-90), math.radians(0)), False)
sketch3.addGeometry(Part.LineSegment(Vector(0, 0.5, 0), Vector(0, 34.5, 0)), False)
sketch3.addConstraint(Sketcher.Constraint("Tangent", 0, 2, 1, 1))
sketch3.addConstraint(Sketcher.Constraint("Tangent", 1, 2, 2, 1))
sketch3.addConstraint(Sketcher.Constraint("Tangent", 2, 2, 3, 1))
sketch3.addConstraint(Sketcher.Constraint("Tangent", 3, 2, 4, 1))
sketch3.addConstraint(Sketcher.Constraint("Tangent", 4, 2, 5, 1))
sketch3.addConstraint(Sketcher.Constraint("Tangent", 5, 2, 6, 1))
sketch3.addConstraint(Sketcher.Constraint("Tangent", 6, 2, 7, 1))
sketch3.addConstraint(Sketcher.Constraint("Tangent", 7, 2, 0, 1))
sketch3.addConstraint(Sketcher.Constraint("Horizontal", 1))
sketch3.addConstraint(Sketcher.Constraint("Vertical", 3))
sketch3.addConstraint(Sketcher.Constraint("Horizontal", 5))
sketch3.addConstraint(Sketcher.Constraint("Vertical", 7))
sketch3.addConstraint(Sketcher.Constraint("Equal", 0, 2))
sketch3.addConstraint(Sketcher.Constraint("Equal", 2, 4))
sketch3.addConstraint(Sketcher.Constraint("Equal", 4, 6))
sketch3.addConstraint(Sketcher.Constraint("PointOnObject", 4, 2, -1))
sketch3.addConstraint(Sketcher.Constraint("PointOnObject", 6, 2, -2))
sketch3.addConstraint(Sketcher.Constraint("Radius", 0, Q("0.5 mm")))
sketch3.addConstraint(Sketcher.Constraint("DistanceY", 3, 2, 3, 1, Q("34 mm")))
sketch3.addConstraint(Sketcher.Constraint("DistanceX", 1, 2, 1, 1, Q("5.5 mm")))
sketch3.setExpression("Constraints[17]", "Params.sketch3_radius")
sketch3.setExpression("Constraints[18]", "Params.sketch3_height")
sketch3.setExpression("Constraints[19]", "Params.sketch3_width")
pad3 = body.newObject("PartDesign::Pad", "Pad002")
pad3.Profile = sketch3
pad3.setExpression("Length", "Params.pad3_length")
body2 = doc.addObject("PartDesign::Body", "Body001")

sketch4 = body2.newObject("Sketcher::SketchObject", "Sketch003")
sketch4.AttachmentSupport = (doc.getObject("YZ_Plane001"), [""])
sketch4.MapMode = "FlatFace"
sketch4.addGeometry(Part.LineSegment(Vector(3.39, 40.54, 0), Vector(-6.58, 38.62, 0)), False)
sketch4.addGeometry(Part.ArcOfCircle(Part.Circle(Vector(-6.1, 36.16, 0), Vector(0, 0, 1), 2.5), math.radians(101), math.radians(177)), False)
sketch4.addGeometry(Part.LineSegment(Vector(-8.6, 36.3, 0), Vector(-8.6, -2.99, 0)), False)
sketch4.addGeometry(Part.ArcOfCircle(Part.Circle(Vector(-7.6, -2.99, 0), Vector(0, 0, 1), 1), math.radians(180), math.radians(255)), False)
sketch4.addGeometry(Part.ArcOfCircle(Part.Circle(Vector(2.92, 36.34, 0), Vector(0, 0, 1), 41.72), math.radians(-104.97), math.radians(-91.01)), False)
sketch4.addGeometry(Part.ArcOfCircle(Part.Circle(Vector(2.2, -4.37, 0), Vector(0, 0, 1), 1), math.radians(-91), math.radians(151)), False)
sketch4.addGeometry(Part.ArcOfCircle(Part.Circle(Vector(0.8, -3.59, 0), Vector(0, 0, 1), 0.6), math.radians(-145), math.radians(-29)), False)
sketch4.addGeometry(Part.ArcOfCircle(Part.Circle(Vector(-0.02, -4.17, 0), Vector(0, 0, 1), 0.4), math.radians(35), math.radians(86)), False)
sketch4.addGeometry(Part.ArcOfCircle(Part.Circle(Vector(2.92, 36.34, 0), Vector(0, 0, 1), 40.22), math.radians(-102.52), math.radians(-94.15)), False)
sketch4.addGeometry(Part.ArcOfCircle(Part.Circle(Vector(-6.02, -3.89, 0), Vector(0, 0, 1), 1), math.radians(77), math.radians(117)), False)
sketch4.addGeometry(Part.ArcOfCircle(Part.Circle(Vector(-6.6, -2.73, 0), Vector(0, 0, 1), 0.3), math.radians(140), math.radians(297)), False)
sketch4.addGeometry(Part.ArcOfCircle(Part.Circle(Vector(-7.6, -1.9, 0), Vector(0, 0, 1), 1), math.radians(-40), math.radians(0)), False)
sketch4.addGeometry(Part.LineSegment(Vector(-6.6, -1.9, 0), Vector(-6.6, 5.6, 0)), False)
sketch4.addGeometry(Part.LineSegment(Vector(-6.6, 5.6, 0), Vector(-7, 5.6, 0)), False)
sketch4.addGeometry(Part.LineSegment(Vector(-7, 5.6, 0), Vector(-7, 29.4, 0)), False)
sketch4.addGeometry(Part.LineSegment(Vector(-7, 29.4, 0), Vector(-6.6, 29.4, 0)), False)
sketch4.addGeometry(Part.LineSegment(Vector(-6.6, 29.4, 0), Vector(-6.6, 36.25, 0)), False)
sketch4.addGeometry(Part.ArcOfCircle(Part.Circle(Vector(-5.54, 36.25, 0), Vector(0, 0, 1), 1.06), math.radians(101), math.radians(180)), False)
sketch4.addGeometry(Part.LineSegment(Vector(-5.74, 37.29, 0), Vector(3.66, 39.11, 0)), False)
sketch4.addGeometry(Part.ArcOfCircle(Part.Circle(Vector(3.96, 37.56, 0), Vector(0, 0, 1), 1.57), math.radians(-44), math.radians(101)), False)
sketch4.addGeometry(Part.ArcOfCircle(Part.Circle(Vector(5.61, 35.96, 0), Vector(0, 0, 1), 0.73), math.radians(136), math.radians(316)), False)
sketch4.addGeometry(Part.ArcOfCircle(Part.Circle(Vector(3.96, 37.56, 0), Vector(0, 0, 1), 3.03), math.radians(-44), math.radians(101)), False)
sketch4.addConstraint(Sketcher.Constraint("Tangent", 0, 2, 1, 1))
sketch4.addConstraint(Sketcher.Constraint("Coincident", 1, 2, 2, 1))
sketch4.addConstraint(Sketcher.Constraint("Tangent", 2, 2, 3, 1))
sketch4.addConstraint(Sketcher.Constraint("Tangent", 3, 2, 4, 1))
sketch4.addConstraint(Sketcher.Constraint("Tangent", 4, 2, 5, 1))
sketch4.addConstraint(Sketcher.Constraint("Tangent", 5, 2, 6, 2))
sketch4.addConstraint(Sketcher.Constraint("Tangent", 6, 1, 7, 1))
sketch4.addConstraint(Sketcher.Constraint("Tangent", 7, 2, 8, 2))
sketch4.addConstraint(Sketcher.Constraint("Tangent", 8, 1, 9, 1))
sketch4.addConstraint(Sketcher.Constraint("Tangent", 9, 2, 10, 2))
sketch4.addConstraint(Sketcher.Constraint("Tangent", 10, 1, 11, 1))
sketch4.addConstraint(Sketcher.Constraint("Tangent", 11, 2, 12, 1))
sketch4.addConstraint(Sketcher.Constraint("Coincident", 12, 2, 13, 1))
sketch4.addConstraint(Sketcher.Constraint("Coincident", 13, 2, 14, 1))
sketch4.addConstraint(Sketcher.Constraint("Coincident", 14, 2, 15, 1))
sketch4.addConstraint(Sketcher.Constraint("Coincident", 15, 2, 16, 1))
sketch4.addConstraint(Sketcher.Constraint("Tangent", 16, 2, 17, 2))
sketch4.addConstraint(Sketcher.Constraint("Tangent", 17, 1, 18, 1))
sketch4.addConstraint(Sketcher.Constraint("Tangent", 18, 2, 19, 2))
sketch4.addConstraint(Sketcher.Constraint("Tangent", 19, 1, 20, 1))
sketch4.addConstraint(Sketcher.Constraint("Tangent", 20, 2, 21, 1))
sketch4.addConstraint(Sketcher.Constraint("Tangent", 21, 2, 0, 1))
sketch4.addConstraint(Sketcher.Constraint("Vertical", 2))
sketch4.addConstraint(Sketcher.Constraint("Vertical", 12))
sketch4.addConstraint(Sketcher.Constraint("Horizontal", 13))
sketch4.addConstraint(Sketcher.Constraint("Vertical", 14))
sketch4.addConstraint(Sketcher.Constraint("Horizontal", 15))
sketch4.addConstraint(Sketcher.Constraint("Vertical", 16))
sketch4.addConstraint(Sketcher.Constraint("Coincident", 8, 3, 4, 3))
sketch4.addConstraint(Sketcher.Constraint("Coincident", 21, 3, 19, 3))
sketch4.addConstraint(Sketcher.Constraint("Equal", 3, 5))
sketch4.addConstraint(Sketcher.Constraint("Equal", 5, 9))
sketch4.addConstraint(Sketcher.Constraint("Equal", 9, 11))
sketch4.addConstraint(Sketcher.Constraint("Parallel", 0, 18))
sketch4.addConstraint(Sketcher.Constraint("Vertical", 3, 3, 11, 3))
sketch4.addConstraint(Sketcher.Constraint("Vertical", 10, 3, 11, 2))
sketch4.addConstraint(Sketcher.Constraint("Vertical", 12, 2, 15, 2))
sketch4.addConstraint(Sketcher.Constraint("Radius", 3, Q("1 mm")))
sketch4.addConstraint(Sketcher.Constraint("Radius", 6, Q("0.6 mm")))
sketch4.addConstraint(Sketcher.Constraint("Radius", 7, Q("0.4 mm")))
sketch4.addConstraint(Sketcher.Constraint("Radius", 10, Q("0.3 mm")))
sketch4.addConstraint(Sketcher.Constraint("Radius", 19, Q("1.57 mm")))
sketch4.addConstraint(Sketcher.Constraint("Radius", 20, Q("0.73 mm")))
sketch4.addConstraint(Sketcher.Constraint("DistanceX", 13, 2, 13, 1, Q("0.4 mm")))
sketch4.addConstraint(Sketcher.Constraint("DistanceY", 12, 1, 12, 2, Q("7.5 mm")))
sketch4.addConstraint(Sketcher.Constraint("Radius", 4, Q("41.716588 mm")))
sketch4.addConstraint(Sketcher.Constraint("Radius", 8, Q("40.216588 mm")))
sketch4.addConstraint(Sketcher.Constraint("Radius", 17, Q("1.058072 mm")))
sketch4.addConstraint(Sketcher.Constraint("DistanceY", 16, 1, 16, 2, Q("6.855099 mm")))
sketch4.addConstraint(Sketcher.Constraint("Radius", 1, Q("2.498697 mm")))
sketch4.addConstraint(Sketcher.Constraint("DistanceY", 14, 1, 14, 2, Q("23.797589 mm")))
sketch4.addConstraint(Sketcher.Constraint("DistanceX", 3, 3, 4, 3, Q("10.5204 mm")))
sketch4.addConstraint(Sketcher.Constraint("DistanceX", 3, 3, 5, 3, Q("9.801199 mm")))
sketch4.addConstraint(Sketcher.Constraint("DistanceX", 7, 3, 5, 3, Q("2.219099 mm")))
sketch4.addConstraint(Sketcher.Constraint("DistanceY", 9, 3, 10, 3, Q("1.162302 mm")))
sketch4.addConstraint(Sketcher.Constraint("DistanceX", 1, 3, 19, 3, Q("10.065299 mm")))
sketch4.addConstraint(Sketcher.Constraint("DistanceX", 17, 3, 20, 3, Q("11.154401 mm")))
sketch4.addConstraint(Sketcher.Constraint("Distance", 18, Q("9.57861 mm")))
sketch4.addConstraint(Sketcher.Constraint("DistanceY", 2, 2, 2, 1, Q("39.292852 mm")))
sketch4.addConstraint(Sketcher.Constraint("DistanceX", 9, 3, -1, 1, Q("6.016408 mm")))
sketch4.addConstraint(Sketcher.Constraint("DistanceY", 9, 3, -1, 1, Q("3.893338 mm")))
sketch4.setExpression("Constraints[37]", "Params.sketch4_radius")
sketch4.setExpression("Constraints[38]", "Params.sketch4_radius2")
sketch4.setExpression("Constraints[39]", "Params.sketch4_radius3")
sketch4.setExpression("Constraints[40]", "Params.sketch4_radius4")
sketch4.setExpression("Constraints[41]", "Params.sketch4_radius5")
pad4 = body2.newObject("PartDesign::Pad", "Pad003")
pad4.Profile = sketch4
pad4.setExpression("Length", "Params.pad4_length")
doc.recompute()

fillet2 = body2.newObject("PartDesign::Fillet", "Fillet001")
fillet2.Base = (pad4, edges_at(pad4, [
    (100, 5.106, 35.44),
    (100, 6.626, 39.007),
    (100, -1.595, 39.578),
    (100, -7.986, 37.807),
    (100, -8.599, 16.655),
    (100, -8.392, -3.6),
    (100, -2.879, -4.969),
    (100, 3.068, -3.867),
    (100, 0.834, -4.193),
    (100, 0.181, -3.82),
    (100, -2.909, -3.449),
    (100, -6.139, -2.901),
    (100, -6.834, -2.918),
    (100, -6.658, -2.24),
    (100, -6.599, 1.85),
    (100, -6.799, 5.6),
    (100, -6.999, 17.498),
    (100, -6.799, 29.397),
    (100, -6.599, 32.825),
    (100, -6.357, 36.926),
    (100, -1.039, 38.199),
    (100, 5.342, 38.312),
    (0, 5.106, 35.44),
    (0, 6.626, 39.007),
    (0, -1.595, 39.578),
    (0, -7.986, 37.807),
    (0, -8.599, 16.655),
    (0, -8.392, -3.6),
    (0, -2.879, -4.969),
    (0, 3.068, -3.867),
    (0, 0.834, -4.193),
    (0, 0.181, -3.82),
    (0, -2.909, -3.449),
    (0, -6.139, -2.901),
    (0, -6.834, -2.918),
    (0, -6.658, -2.24),
    (0, -6.599, 1.85),
    (0, -6.799, 5.6),
    (0, -6.999, 17.498),
    (0, -6.799, 29.397),
    (0, -6.599, 32.825),
    (0, -6.357, 36.926),
    (0, -1.039, 38.199),
    (0, 5.342, 38.312),
]))
fillet2.setExpression("Radius", "Params.fillet2_radius")
body3 = doc.addObject("PartDesign::Body", "Body002")

sketch5 = body3.newObject("Sketcher::SketchObject", "Sketch004")
sketch5.AttachmentSupport = (doc.getObject("YZ_Plane002"), [""])
sketch5.MapMode = "FlatFace"
sketch5.addGeometry(Part.LineSegment(Vector(3.1, 30.9, 0), Vector(3.1, 9.6, 0)), False)
sketch5.addGeometry(Part.LineSegment(Vector(3.1, 9.6, 0), Vector(4.1, 9.6, 0)), False)
sketch5.addGeometry(Part.ArcOfCircle(Part.Circle(Vector(4.1, 10.6, 0), Vector(0, 0, 1), 1), math.radians(-90), math.radians(0)), False)
sketch5.addGeometry(Part.LineSegment(Vector(5.1, 10.6, 0), Vector(5.1, 28.2, 0)), False)
sketch5.addGeometry(Part.ArcOfCircle(Part.Circle(Vector(7.3, 28.2, 0), Vector(0, 0, 1), 2.1), math.radians(11), math.radians(180)), False)
sketch5.addGeometry(Part.LineSegment(Vector(9.4, 28.6, 0), Vector(10.6, 22.1, 0)), False)
sketch5.addGeometry(Part.ArcOfCircle(Part.Circle(Vector(11.6, 22.3, 0), Vector(0, 0, 1), 1), math.radians(-169), math.radians(-79)), False)
sketch5.addGeometry(Part.LineSegment(Vector(11.8, 21.3, 0), Vector(30.7, 24.9, 0)), False)
sketch5.addGeometry(Part.ArcOfCircle(Part.Circle(Vector(30.5, 25.9, 0), Vector(0, 0, 1), 1), math.radians(-79), math.radians(14)), False)
sketch5.addGeometry(Part.LineSegment(Vector(31.5, 26.2, 0), Vector(31.2, 27.1, 0)), False)
sketch5.addGeometry(Part.LineSegment(Vector(31.2, 27.1, 0), Vector(12.6, 23.5, 0)), False)
sketch5.addGeometry(Part.LineSegment(Vector(12.6, 23.5, 0), Vector(9, 42.1, 0)), False)
sketch5.addGeometry(Part.LineSegment(Vector(9, 42.1, 0), Vector(8, 41.9, 0)), False)
sketch5.addGeometry(Part.ArcOfCircle(Part.Circle(Vector(8.2, 41, 0), Vector(0, 0, 1), 1), math.radians(101), math.radians(191)), False)
sketch5.addGeometry(Part.LineSegment(Vector(7.2, 40.8, 0), Vector(7.8, 37.8, 0)), False)
sketch5.addGeometry(Part.ArcOfCircle(Part.Circle(Vector(2.8, 36.8, 0), Vector(0, 0, 1), 5.1), math.radians(-78), math.radians(11)), False)
sketch5.addGeometry(Part.ArcOfCircle(Part.Circle(Vector(4, 30.9, 0), Vector(0, 0, 1), 0.9), math.radians(102), math.radians(180)), False)
sketch5.addConstraint(Sketcher.Constraint("Coincident", 0, 2, 1, 1))
sketch5.addConstraint(Sketcher.Constraint("Tangent", 1, 2, 2, 1))
sketch5.addConstraint(Sketcher.Constraint("Tangent", 2, 2, 3, 1))
sketch5.addConstraint(Sketcher.Constraint("Tangent", 3, 2, 4, 2))
sketch5.addConstraint(Sketcher.Constraint("Tangent", 4, 1, 5, 1))
sketch5.addConstraint(Sketcher.Constraint("Tangent", 5, 2, 6, 1))
sketch5.addConstraint(Sketcher.Constraint("Tangent", 6, 2, 7, 1))
sketch5.addConstraint(Sketcher.Constraint("Tangent", 7, 2, 8, 1))
sketch5.addConstraint(Sketcher.Constraint("Tangent", 8, 2, 9, 1))
sketch5.addConstraint(Sketcher.Constraint("Coincident", 9, 2, 10, 1))
sketch5.addConstraint(Sketcher.Constraint("Coincident", 10, 2, 11, 1))
sketch5.addConstraint(Sketcher.Constraint("Coincident", 11, 2, 12, 1))
sketch5.addConstraint(Sketcher.Constraint("Tangent", 12, 2, 13, 1))
sketch5.addConstraint(Sketcher.Constraint("Tangent", 13, 2, 14, 1))
sketch5.addConstraint(Sketcher.Constraint("Tangent", 14, 2, 15, 2))
sketch5.addConstraint(Sketcher.Constraint("Tangent", 15, 1, 16, 1))
sketch5.addConstraint(Sketcher.Constraint("Tangent", 16, 2, 0, 1))
sketch5.addConstraint(Sketcher.Constraint("Vertical", 0))
sketch5.addConstraint(Sketcher.Constraint("Horizontal", 1))
sketch5.addConstraint(Sketcher.Constraint("Vertical", 3))
sketch5.addConstraint(Sketcher.Constraint("Equal", 2, 6))
sketch5.addConstraint(Sketcher.Constraint("Equal", 6, 8))
sketch5.addConstraint(Sketcher.Constraint("Equal", 8, 13))
sketch5.addConstraint(Sketcher.Constraint("Perpendicular", 5, 7))
sketch5.addConstraint(Sketcher.Constraint("Parallel", 7, 10))
sketch5.addConstraint(Sketcher.Constraint("Perpendicular", 10, 11))
sketch5.addConstraint(Sketcher.Constraint("Perpendicular", 11, 12))
sketch5.addConstraint(Sketcher.Constraint("Perpendicular", 12, 14))
sketch5.addConstraint(Sketcher.Constraint("Equal", 10, 11))
sketch5.addConstraint(Sketcher.Constraint("Radius", 2, Q("1 mm")))
sketch5.addConstraint(Sketcher.Constraint("Radius", 15, Q("5.1 mm")))
sketch5.addConstraint(Sketcher.Constraint("Radius", 16, Q("0.9 mm")))
sketch5.addConstraint(Sketcher.Constraint("DistanceX", 1, 1, 1, 2, Q("1 mm")))
sketch5.addConstraint(Sketcher.Constraint("Distance", 10, Q("19 mm")))
sketch5.addConstraint(Sketcher.Constraint("Distance", 12, Q("1 mm")))
sketch5.addConstraint(Sketcher.Constraint("Radius", 4, Q("2.134788 mm")))
sketch5.addConstraint(Sketcher.Constraint("DistanceY", 3, 1, 3, 2, Q("17.534718 mm")))
sketch5.addConstraint(Sketcher.Constraint("DistanceX", 4, 3, 8, 3, Q("23.246498 mm")))
sketch5.addConstraint(Sketcher.Constraint("DistanceY", 8, 3, 4, 3, Q("2.254699 mm")))
sketch5.addConstraint(Sketcher.Constraint("DistanceY", 5, 2, 8, 2, Q("4.0882 mm")))
sketch5.addConstraint(Sketcher.Constraint("DistanceY", 5, 2, 10, 2, Q("1.399502 mm")))
sketch5.addConstraint(Sketcher.Constraint("DistanceY", 16, 3, 11, 2, Q("11.188102 mm")))
sketch5.addConstraint(Sketcher.Constraint("DistanceY", 0, 2, 0, 1, Q("21.308133 mm")))
sketch5.addConstraint(Sketcher.Constraint("DistanceX", -1, 1, 4, 3, Q("7.26768 mm")))
sketch5.addConstraint(Sketcher.Constraint("DistanceY", -1, 1, 4, 3, Q("28.168852 mm")))
sketch5.setExpression("Constraints[29]", "Params.sketch5_radius")
sketch5.setExpression("Constraints[30]", "Params.sketch5_radius2")
sketch5.setExpression("Constraints[31]", "Params.sketch5_radius3")
sketch5.setExpression("Constraints[32]", "Params.sketch5_width")
sketch5.setExpression("Constraints[33]", "Params.sketch5_length")
pad5 = body3.newObject("PartDesign::Pad", "Pad004")
pad5.Profile = sketch5
pad5.setExpression("Length", "Params.pad5_length")
body4 = doc.addObject("PartDesign::Body", "Body003")

sketch6 = body4.newObject("Sketcher::SketchObject", "Sketch005")
sketch6.AttachmentSupport = (doc.getObject("YZ_Plane003"), [""])
sketch6.MapMode = "FlatFace"
add_polygon(sketch6, [(64, 35), (64, 25), (88, 25), (88, 35)])
sketch6.addConstraint(Sketcher.Constraint("Vertical", 0))
sketch6.addConstraint(Sketcher.Constraint("Horizontal", 1))
sketch6.addConstraint(Sketcher.Constraint("Vertical", 2))
sketch6.addConstraint(Sketcher.Constraint("Horizontal", 3))
sketch6.addConstraint(Sketcher.Constraint("DistanceX", 1, 1, 1, 2, Q("24.50221 mm")))
sketch6.addConstraint(Sketcher.Constraint("DistanceY", 0, 2, 0, 1, Q("9.987792 mm")))
sketch6.addConstraint(Sketcher.Constraint("DistanceY", -1, 1, 0, 2, Q("24.674619 mm")))
sketch6.addConstraint(Sketcher.Constraint("DistanceX", -1, 1, 0, 2, Q("63.844778 mm")))
pad6 = body4.newObject("PartDesign::Pad", "Pad005")
pad6.Profile = sketch6
pad6.setExpression("Length", "Params.pad6_length")

doc.recompute()
